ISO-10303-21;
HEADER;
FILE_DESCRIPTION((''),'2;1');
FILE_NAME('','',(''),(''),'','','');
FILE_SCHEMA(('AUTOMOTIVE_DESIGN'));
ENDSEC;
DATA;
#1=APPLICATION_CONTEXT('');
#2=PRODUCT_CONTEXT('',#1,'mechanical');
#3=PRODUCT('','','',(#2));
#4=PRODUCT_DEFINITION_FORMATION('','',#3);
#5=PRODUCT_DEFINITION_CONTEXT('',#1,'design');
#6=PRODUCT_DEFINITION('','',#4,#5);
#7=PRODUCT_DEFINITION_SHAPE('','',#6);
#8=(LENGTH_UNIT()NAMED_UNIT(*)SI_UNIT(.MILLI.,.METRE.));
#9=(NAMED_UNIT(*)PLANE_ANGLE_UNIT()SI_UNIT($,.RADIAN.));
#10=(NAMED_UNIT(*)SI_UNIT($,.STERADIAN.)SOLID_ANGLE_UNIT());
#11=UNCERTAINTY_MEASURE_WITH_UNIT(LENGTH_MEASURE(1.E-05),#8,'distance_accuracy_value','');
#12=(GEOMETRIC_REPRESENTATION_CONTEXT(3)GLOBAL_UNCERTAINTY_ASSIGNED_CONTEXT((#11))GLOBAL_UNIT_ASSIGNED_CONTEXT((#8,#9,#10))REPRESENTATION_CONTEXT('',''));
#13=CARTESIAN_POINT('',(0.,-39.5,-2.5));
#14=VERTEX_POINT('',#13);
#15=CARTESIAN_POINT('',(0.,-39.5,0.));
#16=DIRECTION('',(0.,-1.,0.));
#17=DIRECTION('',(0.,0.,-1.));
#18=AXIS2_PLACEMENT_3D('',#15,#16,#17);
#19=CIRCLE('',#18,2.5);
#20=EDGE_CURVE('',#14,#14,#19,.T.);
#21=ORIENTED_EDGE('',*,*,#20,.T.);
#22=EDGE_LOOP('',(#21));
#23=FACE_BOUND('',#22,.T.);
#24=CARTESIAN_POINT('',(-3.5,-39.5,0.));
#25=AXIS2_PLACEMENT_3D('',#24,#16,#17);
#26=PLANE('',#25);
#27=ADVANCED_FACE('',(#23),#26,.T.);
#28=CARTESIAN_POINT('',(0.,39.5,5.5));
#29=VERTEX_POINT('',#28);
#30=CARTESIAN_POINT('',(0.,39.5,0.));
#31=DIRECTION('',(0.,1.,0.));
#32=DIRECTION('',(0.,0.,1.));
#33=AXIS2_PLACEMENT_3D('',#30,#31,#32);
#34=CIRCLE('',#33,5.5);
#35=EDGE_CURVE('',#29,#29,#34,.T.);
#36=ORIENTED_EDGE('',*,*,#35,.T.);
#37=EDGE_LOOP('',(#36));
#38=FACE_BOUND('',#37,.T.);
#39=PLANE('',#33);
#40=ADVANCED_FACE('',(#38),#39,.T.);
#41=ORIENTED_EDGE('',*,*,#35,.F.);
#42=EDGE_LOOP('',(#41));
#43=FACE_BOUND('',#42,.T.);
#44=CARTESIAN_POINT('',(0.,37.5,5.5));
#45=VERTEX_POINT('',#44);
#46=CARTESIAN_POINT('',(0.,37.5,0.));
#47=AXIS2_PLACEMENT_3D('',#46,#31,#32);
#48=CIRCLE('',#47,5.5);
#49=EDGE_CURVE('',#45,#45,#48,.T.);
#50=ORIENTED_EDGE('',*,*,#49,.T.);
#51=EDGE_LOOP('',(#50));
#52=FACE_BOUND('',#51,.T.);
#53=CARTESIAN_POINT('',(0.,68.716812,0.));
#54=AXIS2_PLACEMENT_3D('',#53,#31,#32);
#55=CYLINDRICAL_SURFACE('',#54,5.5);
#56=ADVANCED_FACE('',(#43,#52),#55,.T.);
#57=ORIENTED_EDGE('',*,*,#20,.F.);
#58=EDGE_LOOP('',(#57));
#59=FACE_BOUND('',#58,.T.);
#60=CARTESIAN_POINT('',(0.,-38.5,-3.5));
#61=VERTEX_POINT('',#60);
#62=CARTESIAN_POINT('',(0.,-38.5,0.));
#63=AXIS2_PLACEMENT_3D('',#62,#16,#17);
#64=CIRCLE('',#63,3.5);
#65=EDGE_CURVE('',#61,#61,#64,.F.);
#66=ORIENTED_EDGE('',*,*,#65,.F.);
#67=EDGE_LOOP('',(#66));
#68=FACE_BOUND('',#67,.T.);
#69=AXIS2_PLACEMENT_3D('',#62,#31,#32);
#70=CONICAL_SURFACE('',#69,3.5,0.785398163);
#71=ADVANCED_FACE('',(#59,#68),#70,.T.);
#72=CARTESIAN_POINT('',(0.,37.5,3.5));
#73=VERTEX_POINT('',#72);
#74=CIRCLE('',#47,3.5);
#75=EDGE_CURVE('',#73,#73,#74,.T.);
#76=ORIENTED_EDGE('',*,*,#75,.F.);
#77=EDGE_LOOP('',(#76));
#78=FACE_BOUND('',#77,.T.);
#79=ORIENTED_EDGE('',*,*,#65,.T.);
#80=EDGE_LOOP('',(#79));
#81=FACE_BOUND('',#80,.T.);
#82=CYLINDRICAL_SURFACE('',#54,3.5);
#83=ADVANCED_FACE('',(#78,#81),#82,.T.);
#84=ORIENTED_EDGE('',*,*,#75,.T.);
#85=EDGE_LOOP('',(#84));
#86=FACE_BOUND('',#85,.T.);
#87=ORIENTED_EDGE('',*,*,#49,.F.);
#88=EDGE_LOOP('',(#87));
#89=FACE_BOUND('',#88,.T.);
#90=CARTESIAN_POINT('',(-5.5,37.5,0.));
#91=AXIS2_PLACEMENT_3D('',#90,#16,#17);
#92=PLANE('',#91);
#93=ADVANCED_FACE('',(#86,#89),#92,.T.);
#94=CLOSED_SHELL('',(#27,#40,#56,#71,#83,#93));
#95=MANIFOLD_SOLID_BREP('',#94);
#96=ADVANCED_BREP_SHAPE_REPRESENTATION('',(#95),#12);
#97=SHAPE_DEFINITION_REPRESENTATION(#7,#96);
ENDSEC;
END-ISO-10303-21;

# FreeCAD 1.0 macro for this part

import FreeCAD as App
import Part
import Sketcher
Q = App.Units.Quantity


def edges_at(feature, points):
    """Names of the edges that pass closest to the given points."""
    edges = feature.Shape.Edges
    near = lambda p: min(range(len(edges)), key=lambda i: edges[i].distToShape(Part.Vertex(*p))[0])
    return sorted({f"Edge{near(p) + 1}" for p in points})


def add_polygon(sketch, points):
    """Adds a closed chain of lines whose ends are joined by coincident constraints."""
    first, n = sketch.GeometryCount, len(points)
    for a, b in zip(points, points[1:] + points[:1]):
        sketch.addGeometry(Part.LineSegment(App.Vector(*a, 0), App.Vector(*b, 0)), False)
    for i in range(n):
        sketch.addConstraint(Sketcher.Constraint("Coincident", first + i, 2, first + (i + 1) % n, 1))

doc = App.newDocument("Part")
body = doc.addObject("PartDesign::Body", "Body")

# Sketch on XY plane
sketch1 = body.newObject("Sketcher::SketchObject", "Sketch")
sketch1.AttachmentSupport = (doc.getObject("XY_Plane"), [""])
sketch1.MapMode = "FlatFace"
add_polygon(sketch1, [(0, 39.5), (-5.5, 39.5), (-5.5, 37.5), (-3.5, 37.5), (-3.5, -39.5), (0, -39.5)])  # lines 0-5
sketch1.addConstraint(Sketcher.Constraint("Horizontal", 0))
sketch1.addConstraint(Sketcher.Constraint("Vertical", 1))
sketch1.addConstraint(Sketcher.Constraint("Horizontal", 2))
sketch1.addConstraint(Sketcher.Constraint("Vertical", 3))
sketch1.addConstraint(Sketcher.Constraint("Horizontal", 4))
sketch1.addConstraint(Sketcher.Constraint("Vertical", 5))
sketch1.addConstraint(Sketcher.Constraint("Symmetric", 4, 2, 5, 2, -1, 1))
sketch1.addConstraint(Sketcher.Constraint("Equal", 2, 1))
sketch1.addConstraint(Sketcher.Constraint("DistanceX", 2, 1, 2, 2, Q("2 mm")))
sketch1.addConstraint(Sketcher.Constraint("DistanceY", 3, 2, 3, 1, Q("77 mm")))
sketch1.addConstraint(Sketcher.Constraint("DistanceX", 0, 2, 0, 1, Q("5.5 mm")))
revolution = body.newObject("PartDesign::Revolution", "Revolution")
revolution.Profile = sketch1
revolution.ReferenceAxis = (sketch1, ["V_Axis"])
revolution.Angle = 360
doc.recompute()

chamfer = body.newObject("PartDesign::Chamfer", "Chamfer")
chamfer.Base = (revolution, edges_at(revolution, [(0, -39.5, -3.5)]))
chamfer.Size = 1

doc.recompute()
